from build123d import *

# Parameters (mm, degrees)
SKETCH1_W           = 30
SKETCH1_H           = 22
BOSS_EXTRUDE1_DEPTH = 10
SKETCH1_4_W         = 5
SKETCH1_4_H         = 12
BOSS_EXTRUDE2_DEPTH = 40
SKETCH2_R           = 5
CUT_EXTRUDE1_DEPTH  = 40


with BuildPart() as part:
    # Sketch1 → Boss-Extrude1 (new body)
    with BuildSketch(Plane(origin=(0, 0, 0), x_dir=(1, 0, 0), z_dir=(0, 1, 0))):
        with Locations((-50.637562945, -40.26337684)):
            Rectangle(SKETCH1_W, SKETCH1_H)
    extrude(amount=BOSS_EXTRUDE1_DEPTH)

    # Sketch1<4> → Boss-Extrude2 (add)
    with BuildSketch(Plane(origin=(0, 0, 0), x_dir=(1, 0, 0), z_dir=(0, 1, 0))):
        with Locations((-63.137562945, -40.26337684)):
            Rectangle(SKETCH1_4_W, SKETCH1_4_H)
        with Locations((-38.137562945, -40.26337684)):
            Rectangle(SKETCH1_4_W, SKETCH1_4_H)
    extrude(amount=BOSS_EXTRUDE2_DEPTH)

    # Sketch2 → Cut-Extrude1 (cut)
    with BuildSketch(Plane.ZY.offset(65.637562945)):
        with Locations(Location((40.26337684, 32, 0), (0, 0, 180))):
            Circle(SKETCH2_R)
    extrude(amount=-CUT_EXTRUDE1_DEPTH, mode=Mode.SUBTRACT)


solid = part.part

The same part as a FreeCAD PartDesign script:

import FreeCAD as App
import Part
import Sketcher
from FreeCAD import Vector


def add_polygon(sketch, points):
    """Adds a closed chain of lines whose ends are joined by coincident constraints."""
    first, n = sketch.GeometryCount, len(points)
    for a, b in zip(points, points[1:] + points[:1]):
        sketch.addGeometry(Part.LineSegment(App.Vector(*a, 0), App.Vector(*b, 0)), False)
    for i in range(n):
        sketch.addConstraint(Sketcher.Constraint("Coincident", first + i, 2, first + (i + 1) % n, 1))

doc = App.newDocument("Part")
body = doc.addObject("PartDesign::Body", "Body")

# Sketch on XZ plane
sketch1 = body.newObject("Sketcher::SketchObject", "Sketch")
sketch1.AttachmentSupport = (doc.getObject("XZ_Plane"), [""])
sketch1.MapMode = "FlatFace"
add_polygon(sketch1, [(-65.637563, 29.263377), (-65.637563, 51.263377), (-35.637563, 51.263377), (-35.637563, 29.263377)])  # lines 0-3
sketch1.addConstraint([
    Sketcher.Constraint("Vertical", 0),
    Sketcher.Constraint("Horizontal", 1),
    Sketcher.Constraint("Vertical", 2),
    Sketcher.Constraint("Horizontal", 3),
    Sketcher.Constraint("DistanceX", 1, 1, 1, 2, 30.0),
    Sketcher.Constraint("DistanceY", 0, 1, 0, 2, 22.0),
    Sketcher.Constraint("DistanceX", 0, 2, -1, 1, 65.637563),
    Sketcher.Constraint("DistanceY", -1, 1, 0, 2, 51.263377),
])
pad1 = body.newObject("PartDesign::Pad", "Pad")
pad1.Profile = sketch1
pad1.Length = 10
pad1.Reversed = True

# Sketch on XZ plane
sketch2 = body.newObject("Sketcher::SketchObject", "Sketch001")
sketch2.AttachmentSupport = (doc.getObject("XZ_Plane"), [""])
sketch2.MapMode = "FlatFace"
add_polygon(sketch2, [(-65.637563, 34.263377), (-65.637563, 46.263377), (-60.637563, 46.263377), (-60.637563, 34.263377)])  # lines 0-3
add_polygon(sketch2, [(-40.637563, 34.263377), (-40.637563, 46.263377), (-35.637563, 46.263377), (-35.637563, 34.263377)])  # lines 4-7
sketch2.addConstraint([
    Sketcher.Constraint("Vertical", 0),
    Sketcher.Constraint("Horizontal", 1),
    Sketcher.Constraint("Vertical", 2),
    Sketcher.Constraint("Horizontal", 3),
    Sketcher.Constraint("Vertical", 4),
    Sketcher.Constraint("Horizontal", 5),
    Sketcher.Constraint("Vertical", 6),
    Sketcher.Constraint("Horizontal", 7),
    Sketcher.Constraint("Horizontal", 1, 2, 4, 2),
    Sketcher.Constraint("Horizontal", 3, 2, 6, 2),
    Sketcher.Constraint("Equal", 3, 5),
    Sketcher.Constraint("DistanceX", 1, 1, 1, 2, 5.0),
    Sketcher.Constraint("DistanceY", 0, 1, 0, 2, 12.0),
    Sketcher.Constraint("DistanceX", 1, 2, 4, 2, 20.0),
    Sketcher.Constraint("DistanceX", 0, 2, -1, 1, 65.637563),
    Sketcher.Constraint("DistanceY", -1, 1, 0, 2, 46.263377),
])
pad2 = body.newObject("PartDesign::Pad", "Pad001")
pad2.Profile = sketch2
pad2.Length = 40
pad2.Reversed = True

# Sketch on YZ plane
sketch3 = body.newObject("Sketcher::SketchObject", "Sketch002")
sketch3.AttachmentSupport = (doc.getObject("YZ_Plane"), [""])
sketch3.MapMode = "FlatFace"
sketch3.AttachmentOffset = App.Placement(Vector(0, 0, -65.637563), App.Rotation())
sketch3.addGeometry(Part.Circle(Vector(32, 40.263377, 0), Vector(0, 0, 1), 5), False)
sketch3.addConstraint([
    Sketcher.Constraint("Diameter", 0, 10.0),
    Sketcher.Constraint("DistanceX", -1, 1, 0, 3, 32.0),
    Sketcher.Constraint("DistanceY", -1, 1, 0, 3, 40.263377),
])
pocket1 = body.newObject("PartDesign::Pocket", "Pocket")
pocket1.Profile = sketch3
pocket1.Length = 40
pocket1.Reversed = True

doc.recompute()
